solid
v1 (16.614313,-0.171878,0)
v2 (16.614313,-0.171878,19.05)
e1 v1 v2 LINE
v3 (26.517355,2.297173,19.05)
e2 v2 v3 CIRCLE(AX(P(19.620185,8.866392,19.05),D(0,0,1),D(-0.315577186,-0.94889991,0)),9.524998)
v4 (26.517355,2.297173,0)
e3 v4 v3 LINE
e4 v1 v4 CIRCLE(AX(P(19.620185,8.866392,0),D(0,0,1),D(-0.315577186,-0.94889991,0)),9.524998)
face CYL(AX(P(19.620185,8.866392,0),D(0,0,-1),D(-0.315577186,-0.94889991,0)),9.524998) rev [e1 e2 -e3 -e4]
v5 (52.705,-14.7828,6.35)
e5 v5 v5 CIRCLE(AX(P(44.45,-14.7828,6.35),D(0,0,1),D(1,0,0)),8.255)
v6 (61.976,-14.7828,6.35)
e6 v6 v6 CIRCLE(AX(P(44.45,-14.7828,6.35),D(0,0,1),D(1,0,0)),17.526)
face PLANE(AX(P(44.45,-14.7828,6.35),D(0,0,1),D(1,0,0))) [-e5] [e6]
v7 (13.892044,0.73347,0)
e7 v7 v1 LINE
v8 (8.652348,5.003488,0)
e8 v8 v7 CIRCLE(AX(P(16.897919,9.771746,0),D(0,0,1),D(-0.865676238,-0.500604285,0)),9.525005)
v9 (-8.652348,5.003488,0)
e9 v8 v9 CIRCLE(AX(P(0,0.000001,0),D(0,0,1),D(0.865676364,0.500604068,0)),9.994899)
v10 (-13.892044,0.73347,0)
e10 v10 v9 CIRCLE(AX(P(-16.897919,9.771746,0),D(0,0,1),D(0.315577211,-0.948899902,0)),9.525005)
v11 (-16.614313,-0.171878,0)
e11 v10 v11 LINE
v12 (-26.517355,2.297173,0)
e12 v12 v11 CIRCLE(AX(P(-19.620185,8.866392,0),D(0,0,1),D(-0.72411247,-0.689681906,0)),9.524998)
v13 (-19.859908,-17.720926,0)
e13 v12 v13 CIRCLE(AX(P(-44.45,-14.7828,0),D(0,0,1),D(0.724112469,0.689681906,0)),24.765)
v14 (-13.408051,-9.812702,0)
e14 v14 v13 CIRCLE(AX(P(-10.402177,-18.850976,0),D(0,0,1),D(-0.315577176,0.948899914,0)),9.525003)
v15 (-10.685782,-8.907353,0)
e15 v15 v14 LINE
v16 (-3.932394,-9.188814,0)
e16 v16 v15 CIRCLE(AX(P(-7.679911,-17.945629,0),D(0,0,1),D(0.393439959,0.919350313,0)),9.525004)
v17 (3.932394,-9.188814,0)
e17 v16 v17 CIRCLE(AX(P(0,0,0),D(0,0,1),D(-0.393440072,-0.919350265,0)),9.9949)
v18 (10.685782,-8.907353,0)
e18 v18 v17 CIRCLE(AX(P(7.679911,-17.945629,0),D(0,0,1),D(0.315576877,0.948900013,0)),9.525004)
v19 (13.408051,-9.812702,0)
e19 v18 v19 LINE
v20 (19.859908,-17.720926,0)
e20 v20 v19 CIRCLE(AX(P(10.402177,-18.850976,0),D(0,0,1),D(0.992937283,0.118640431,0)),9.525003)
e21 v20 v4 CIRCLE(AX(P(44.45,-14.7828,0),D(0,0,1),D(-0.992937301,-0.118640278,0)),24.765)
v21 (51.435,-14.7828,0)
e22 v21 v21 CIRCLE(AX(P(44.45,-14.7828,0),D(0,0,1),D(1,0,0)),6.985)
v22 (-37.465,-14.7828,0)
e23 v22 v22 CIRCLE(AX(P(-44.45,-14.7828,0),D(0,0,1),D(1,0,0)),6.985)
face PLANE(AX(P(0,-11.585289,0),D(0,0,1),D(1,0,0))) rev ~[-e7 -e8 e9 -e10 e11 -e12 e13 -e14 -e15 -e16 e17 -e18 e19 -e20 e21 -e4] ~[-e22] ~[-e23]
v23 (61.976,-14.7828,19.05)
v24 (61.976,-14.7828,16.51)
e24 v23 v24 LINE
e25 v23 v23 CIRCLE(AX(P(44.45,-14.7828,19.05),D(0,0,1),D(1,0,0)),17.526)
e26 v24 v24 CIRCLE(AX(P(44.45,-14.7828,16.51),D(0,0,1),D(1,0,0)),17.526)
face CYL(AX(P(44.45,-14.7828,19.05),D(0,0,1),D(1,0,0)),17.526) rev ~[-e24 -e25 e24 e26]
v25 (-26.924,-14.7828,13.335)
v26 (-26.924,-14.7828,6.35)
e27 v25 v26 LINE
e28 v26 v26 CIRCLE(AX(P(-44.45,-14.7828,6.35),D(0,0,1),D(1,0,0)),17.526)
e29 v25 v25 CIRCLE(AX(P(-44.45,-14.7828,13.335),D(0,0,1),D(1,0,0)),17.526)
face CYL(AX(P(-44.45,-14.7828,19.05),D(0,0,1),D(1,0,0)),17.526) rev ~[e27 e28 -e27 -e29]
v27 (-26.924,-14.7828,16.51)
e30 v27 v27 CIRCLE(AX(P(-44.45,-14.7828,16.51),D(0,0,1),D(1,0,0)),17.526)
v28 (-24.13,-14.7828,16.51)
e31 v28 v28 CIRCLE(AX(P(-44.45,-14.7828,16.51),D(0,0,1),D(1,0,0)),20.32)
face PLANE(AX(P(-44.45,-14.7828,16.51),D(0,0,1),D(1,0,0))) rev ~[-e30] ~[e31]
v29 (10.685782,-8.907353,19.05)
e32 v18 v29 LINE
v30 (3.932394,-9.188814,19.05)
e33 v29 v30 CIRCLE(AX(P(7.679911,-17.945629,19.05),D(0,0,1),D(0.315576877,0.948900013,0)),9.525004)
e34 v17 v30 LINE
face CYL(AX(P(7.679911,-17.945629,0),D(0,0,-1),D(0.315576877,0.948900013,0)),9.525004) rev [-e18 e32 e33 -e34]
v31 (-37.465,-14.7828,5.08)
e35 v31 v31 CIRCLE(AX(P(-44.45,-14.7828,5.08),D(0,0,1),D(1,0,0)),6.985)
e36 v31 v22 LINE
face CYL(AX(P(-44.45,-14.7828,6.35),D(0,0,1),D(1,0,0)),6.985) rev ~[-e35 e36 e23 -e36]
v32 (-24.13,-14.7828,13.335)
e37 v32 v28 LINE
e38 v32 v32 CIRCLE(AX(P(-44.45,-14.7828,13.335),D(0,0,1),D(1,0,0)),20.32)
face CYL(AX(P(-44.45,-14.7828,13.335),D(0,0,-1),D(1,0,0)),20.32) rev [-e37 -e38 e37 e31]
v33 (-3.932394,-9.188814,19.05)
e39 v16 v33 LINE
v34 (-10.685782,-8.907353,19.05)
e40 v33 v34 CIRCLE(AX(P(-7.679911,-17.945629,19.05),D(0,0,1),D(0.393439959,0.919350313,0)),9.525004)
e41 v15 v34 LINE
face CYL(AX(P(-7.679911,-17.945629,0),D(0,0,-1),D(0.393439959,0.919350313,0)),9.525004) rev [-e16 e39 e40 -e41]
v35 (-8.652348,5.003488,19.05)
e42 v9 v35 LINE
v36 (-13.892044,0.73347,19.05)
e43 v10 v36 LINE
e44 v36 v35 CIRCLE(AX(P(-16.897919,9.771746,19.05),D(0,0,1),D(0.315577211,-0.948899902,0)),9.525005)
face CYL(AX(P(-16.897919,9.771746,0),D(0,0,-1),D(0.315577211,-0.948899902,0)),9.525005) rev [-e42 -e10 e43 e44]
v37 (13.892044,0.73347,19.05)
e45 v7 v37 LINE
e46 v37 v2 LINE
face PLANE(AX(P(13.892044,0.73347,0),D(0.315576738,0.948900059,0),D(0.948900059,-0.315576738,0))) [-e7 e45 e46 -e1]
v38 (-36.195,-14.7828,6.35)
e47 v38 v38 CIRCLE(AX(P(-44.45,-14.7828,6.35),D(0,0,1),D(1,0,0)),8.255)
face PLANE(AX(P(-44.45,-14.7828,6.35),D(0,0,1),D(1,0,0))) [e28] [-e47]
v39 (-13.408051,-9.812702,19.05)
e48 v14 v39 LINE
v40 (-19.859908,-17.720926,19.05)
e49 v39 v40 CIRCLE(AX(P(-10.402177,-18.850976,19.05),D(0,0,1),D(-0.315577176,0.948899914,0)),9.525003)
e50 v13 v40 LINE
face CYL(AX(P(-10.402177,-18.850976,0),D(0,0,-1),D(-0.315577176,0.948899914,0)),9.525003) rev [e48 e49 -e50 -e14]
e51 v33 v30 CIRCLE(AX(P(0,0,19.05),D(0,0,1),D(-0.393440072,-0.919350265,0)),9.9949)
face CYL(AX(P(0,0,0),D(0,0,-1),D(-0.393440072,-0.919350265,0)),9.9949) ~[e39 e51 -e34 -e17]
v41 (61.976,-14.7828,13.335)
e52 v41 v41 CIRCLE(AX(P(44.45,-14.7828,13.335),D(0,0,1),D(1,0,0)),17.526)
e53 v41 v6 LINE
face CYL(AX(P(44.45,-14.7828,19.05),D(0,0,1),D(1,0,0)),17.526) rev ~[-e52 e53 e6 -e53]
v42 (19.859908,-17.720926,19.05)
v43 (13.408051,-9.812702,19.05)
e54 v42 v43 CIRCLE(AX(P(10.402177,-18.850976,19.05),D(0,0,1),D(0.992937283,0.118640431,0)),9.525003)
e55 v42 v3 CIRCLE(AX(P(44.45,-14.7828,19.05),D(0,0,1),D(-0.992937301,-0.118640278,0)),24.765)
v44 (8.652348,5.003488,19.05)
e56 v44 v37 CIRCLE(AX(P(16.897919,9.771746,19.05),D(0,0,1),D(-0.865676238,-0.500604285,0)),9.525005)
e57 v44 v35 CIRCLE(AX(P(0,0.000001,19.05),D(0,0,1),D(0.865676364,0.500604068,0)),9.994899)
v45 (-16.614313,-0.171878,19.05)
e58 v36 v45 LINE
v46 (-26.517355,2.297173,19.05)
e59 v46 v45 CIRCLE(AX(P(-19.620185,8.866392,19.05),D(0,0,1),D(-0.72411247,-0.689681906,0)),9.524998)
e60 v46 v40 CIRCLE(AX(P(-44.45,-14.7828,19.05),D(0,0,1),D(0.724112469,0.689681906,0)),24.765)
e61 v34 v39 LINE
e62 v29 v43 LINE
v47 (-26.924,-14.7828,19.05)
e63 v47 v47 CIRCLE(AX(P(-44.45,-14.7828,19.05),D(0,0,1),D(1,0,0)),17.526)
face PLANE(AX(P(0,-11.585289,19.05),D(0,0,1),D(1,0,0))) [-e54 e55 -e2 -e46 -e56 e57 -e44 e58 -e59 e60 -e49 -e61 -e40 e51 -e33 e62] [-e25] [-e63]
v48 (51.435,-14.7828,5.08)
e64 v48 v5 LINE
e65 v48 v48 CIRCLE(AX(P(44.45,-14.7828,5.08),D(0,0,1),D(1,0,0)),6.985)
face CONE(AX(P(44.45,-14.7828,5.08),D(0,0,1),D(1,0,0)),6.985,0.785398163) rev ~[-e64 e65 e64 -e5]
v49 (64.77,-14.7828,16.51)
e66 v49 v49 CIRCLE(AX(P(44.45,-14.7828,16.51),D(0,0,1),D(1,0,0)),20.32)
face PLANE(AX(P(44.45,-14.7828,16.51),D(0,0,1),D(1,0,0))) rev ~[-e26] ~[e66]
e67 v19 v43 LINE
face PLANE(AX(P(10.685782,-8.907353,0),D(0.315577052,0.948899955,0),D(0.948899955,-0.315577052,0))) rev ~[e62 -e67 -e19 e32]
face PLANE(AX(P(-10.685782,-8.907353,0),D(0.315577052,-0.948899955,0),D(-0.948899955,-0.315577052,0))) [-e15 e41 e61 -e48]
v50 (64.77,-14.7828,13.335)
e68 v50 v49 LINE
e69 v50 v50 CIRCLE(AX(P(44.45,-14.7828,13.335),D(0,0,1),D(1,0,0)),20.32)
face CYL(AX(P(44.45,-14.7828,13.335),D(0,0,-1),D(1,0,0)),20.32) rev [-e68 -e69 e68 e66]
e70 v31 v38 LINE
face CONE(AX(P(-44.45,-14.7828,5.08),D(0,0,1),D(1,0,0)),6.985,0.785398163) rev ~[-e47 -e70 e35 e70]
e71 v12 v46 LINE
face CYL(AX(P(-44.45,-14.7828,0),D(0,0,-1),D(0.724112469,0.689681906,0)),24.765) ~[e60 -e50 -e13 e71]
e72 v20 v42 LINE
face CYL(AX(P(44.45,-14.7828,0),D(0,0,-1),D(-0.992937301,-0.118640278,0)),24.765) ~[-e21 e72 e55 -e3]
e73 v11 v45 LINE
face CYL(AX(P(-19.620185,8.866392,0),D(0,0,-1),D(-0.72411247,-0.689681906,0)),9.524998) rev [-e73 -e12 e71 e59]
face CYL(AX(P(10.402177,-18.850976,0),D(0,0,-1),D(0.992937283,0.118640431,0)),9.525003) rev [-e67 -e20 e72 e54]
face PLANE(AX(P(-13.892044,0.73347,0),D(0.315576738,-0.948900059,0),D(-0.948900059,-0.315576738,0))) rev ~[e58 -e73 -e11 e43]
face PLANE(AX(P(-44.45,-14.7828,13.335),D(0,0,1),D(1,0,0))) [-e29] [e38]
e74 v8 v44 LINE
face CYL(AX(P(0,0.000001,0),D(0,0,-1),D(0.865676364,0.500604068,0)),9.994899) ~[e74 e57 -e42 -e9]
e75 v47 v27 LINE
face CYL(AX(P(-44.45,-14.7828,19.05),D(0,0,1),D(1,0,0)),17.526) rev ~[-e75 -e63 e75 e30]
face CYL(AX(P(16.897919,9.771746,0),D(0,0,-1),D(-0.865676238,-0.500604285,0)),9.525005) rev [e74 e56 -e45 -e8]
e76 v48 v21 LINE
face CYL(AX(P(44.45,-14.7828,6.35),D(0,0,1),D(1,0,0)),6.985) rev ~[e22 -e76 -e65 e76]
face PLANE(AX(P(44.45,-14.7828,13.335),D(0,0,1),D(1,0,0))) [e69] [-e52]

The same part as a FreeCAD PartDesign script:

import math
import FreeCAD as App
import Part
import Sketcher
Q = App.Units.Quantity


def edges_at(feature, points):
    """Names of the edges that pass closest to the given points."""
    edges = feature.Shape.Edges
    near = lambda p: min(range(len(edges)), key=lambda i: edges[i].distToShape(Part.Vertex(*p))[0])
    return sorted({f"Edge{near(p) + 1}" for p in points})

doc = App.newDocument("Part")
body = doc.addObject("PartDesign::Body", "Body")

sketch1 = doc.addObject("Sketcher::SketchObject", "Sketch")
body.addObject(sketch1)
sketch1.AttachmentSupport = (doc.XY_Plane, [""])
sketch1.MapMode = "FlatFace"
sketch1.addGeometry([
    Part.ArcOfCircle(Part.Circle(App.Vector(-44.45, -14.7828, 0), App.Vector(0, 0, 1), 24.765), math.radians(43.604934), math.radians(353.186364)),
    Part.ArcOfCircle(Part.Circle(App.Vector(-10.402177, -18.850976, 0), App.Vector(0, 0, 1), 9.525003), math.radians(108.395661), math.radians(173.186356)),
    Part.LineSegment(App.Vector(-13.408051, -9.812702, 0), App.Vector(-10.685782, -8.907353, 0)),
    Part.ArcOfCircle(Part.Circle(App.Vector(-7.679911, -17.945629, 0), App.Vector(0, 0, 1), 9.525004), math.radians(66.831286), math.radians(108.395643)),
    Part.ArcOfCircle(Part.Circle(App.Vector(0, 0, 0), App.Vector(0, 0, 1), 9.9949), math.radians(-113.168721), math.radians(-66.831279)),
    Part.ArcOfCircle(Part.Circle(App.Vector(7.679911, -17.945629, 0), App.Vector(0, 0, 1), 9.525004), math.radians(71.604357), math.radians(113.168714)),
    Part.LineSegment(App.Vector(10.685782, -8.907353, 0), App.Vector(13.408051, -9.812702, 0)),
    Part.ArcOfCircle(Part.Circle(App.Vector(10.402177, -18.850976, 0), App.Vector(0, 0, 1), 9.525003), math.radians(6.813644), math.radians(71.604339)),
    Part.ArcOfCircle(Part.Circle(App.Vector(44.45, -14.7828, 0), App.Vector(0, 0, 1), 24.765), math.radians(-173.186364), math.radians(136.395066)),
    Part.ArcOfCircle(Part.Circle(App.Vector(19.620185, 8.866392, 0), App.Vector(0, 0, 1), 9.524998), math.radians(-108.395662), math.radians(-43.604934)),
    Part.LineSegment(App.Vector(16.614313, -0.171878, 0), App.Vector(13.892044, 0.73347, 0)),
    Part.ArcOfCircle(Part.Circle(App.Vector(16.897919, 9.771746, 0), App.Vector(0, 0, 1), 9.525005), math.radians(-149.960013), math.radians(-108.395663)),
    Part.ArcOfCircle(Part.Circle(App.Vector(0, 0.000001, 0), App.Vector(0, 0, 1), 9.994899), math.radians(30.039973), math.radians(149.960027)),
    Part.ArcOfCircle(Part.Circle(App.Vector(-16.897919, 9.771746, 0), App.Vector(0, 0, 1), 9.525005), math.radians(-71.604337), math.radians(-30.039987)),
    Part.LineSegment(App.Vector(-13.892044, 0.73347, 0), App.Vector(-16.614313, -0.171878, 0)),
    Part.ArcOfCircle(Part.Circle(App.Vector(-19.620185, 8.866392, 0), App.Vector(0, 0, 1), 9.524998), math.radians(-136.395066), math.radians(-71.604338)),
], False)
sketch1.addConstraint([
    Sketcher.Constraint("Tangent", 0, 2, 1, 2),
    Sketcher.Constraint("Tangent", 1, 1, 2, 1),
    Sketcher.Constraint("Tangent", 2, 2, 3, 2),
    Sketcher.Constraint("Tangent", 3, 1, 4, 1),
    Sketcher.Constraint("Tangent", 4, 2, 5, 2),
    Sketcher.Constraint("Tangent", 5, 1, 6, 1),
    Sketcher.Constraint("Tangent", 6, 2, 7, 2),
    Sketcher.Constraint("Tangent", 7, 1, 8, 1),
    Sketcher.Constraint("Tangent", 8, 2, 9, 2),
    Sketcher.Constraint("Tangent", 9, 1, 10, 1),
    Sketcher.Constraint("Tangent", 10, 2, 11, 2),
    Sketcher.Constraint("Tangent", 11, 1, 12, 1),
    Sketcher.Constraint("Tangent", 12, 2, 13, 2),
    Sketcher.Constraint("Tangent", 13, 1, 14, 1),
    Sketcher.Constraint("Tangent", 14, 2, 15, 2),
    Sketcher.Constraint("Tangent", 15, 1, 0, 1),
    Sketcher.Constraint("Coincident", 4, 3, -1, 1),
    Sketcher.Constraint("Coincident", 12, 3, -1, 1),
    Sketcher.Constraint("Equal", 1, 3),
    Sketcher.Constraint("Equal", 3, 5),
    Sketcher.Constraint("Equal", 5, 7),
    Sketcher.Constraint("Equal", 0, 8),
    Sketcher.Constraint("Equal", 5, 11),
    Sketcher.Constraint("Equal", 4, 12),
    Sketcher.Constraint("Equal", 11, 13),
    Sketcher.Constraint("Equal", 9, 15),
    Sketcher.Constraint("Symmetric", 1, 3, 7, 3, -2),
    Sketcher.Constraint("Symmetric", 9, 3, 15, 3, -2),
    Sketcher.Constraint("Parallel", 6, 10),
    Sketcher.Constraint("Parallel", 2, 14),
    Sketcher.Constraint("Horizontal", 3, 3, 5, 3),
    Sketcher.Constraint("Equal", 6, 10),
    Sketcher.Constraint("Radius", 0, Q("0.975 in")),
    Sketcher.Constraint("Radius", 1, Q("0.3750001 in")),
    Sketcher.Constraint("Radius", 9, Q("0.3749999 in")),
    Sketcher.Constraint("Radius", 4, Q("0.3935 in")),
    Sketcher.Constraint("DistanceX", 0, 3, -1, 1, Q("1.75 in")),
    Sketcher.Constraint("DistanceY", 0, 3, -1, 1, Q("0.582 in")),
    Sketcher.Constraint("DistanceX", 2, 2, -1, 1, Q("0.4207001 in")),
    Sketcher.Constraint("DistanceY", 7, 3, 4, 2, Q("0.3804001 in")),
])
pad1 = doc.addObject("PartDesign::Pad", "Pad")
body.addObject(pad1)
pad1.Profile = sketch1
pad1.Length = Q("0.75 in")

sketch2 = doc.addObject("Sketcher::SketchObject", "Sketch001")
body.addObject(sketch2)
sketch2.AttachmentSupport = (doc.XY_Plane, [""])
sketch2.MapMode = "FlatFace"
sketch2.AttachmentOffset = App.Placement(App.Vector(0, 0, 0.75 * 25.4), App.Rotation())
sketch2.addGeometry([
    Part.Circle(App.Vector(-44.45, -14.7828, 0), App.Vector(0, 0, 1), 17.526),
    Part.Circle(App.Vector(44.45, -14.7828, 0), App.Vector(0, 0, 1), 17.526),
], False)
sketch2.addConstraint([
    Sketcher.Constraint("Equal", 0, 1),
    Sketcher.Constraint("Symmetric", 0, 3, 1, 3, -2),
    Sketcher.Constraint("Diameter", 0, Q("1.38 in")),
    Sketcher.Constraint("DistanceX", 0, 3, 1, 3, Q("3.5 in")),
    Sketcher.Constraint("DistanceY", 0, 3, -1, 1, Q("0.582 in")),
])
pocket1 = doc.addObject("PartDesign::Pocket", "Pocket")
body.addObject(pocket1)
pocket1.Profile = sketch2
pocket1.Length = Q("0.5 in")

sketch3 = doc.addObject("Sketcher::SketchObject", "Sketch002")
body.addObject(sketch3)
sketch3.AttachmentSupport = (doc.XY_Plane, [""])
sketch3.MapMode = "FlatFace"
sketch3.AttachmentOffset = App.Placement(App.Vector(0, 0, 0.25 * 25.4), App.Rotation())
sketch3.addGeometry([
    Part.Circle(App.Vector(-44.45, -14.7828, 0), App.Vector(0, 0, 1), 6.985),
    Part.Circle(App.Vector(44.45, -14.7828, 0), App.Vector(0, 0, 1), 6.985),
], False)
sketch3.addConstraint([
    Sketcher.Constraint("Equal", 0, 1),
    Sketcher.Constraint("Symmetric", 0, 3, 1, 3, -2),
    Sketcher.Constraint("Diameter", 0, Q("0.55 in")),
    Sketcher.Constraint("DistanceX", 0, 3, 1, 3, Q("3.5 in")),
    Sketcher.Constraint("DistanceY", 0, 3, -1, 1, Q("0.582 in")),
])
pocket2 = doc.addObject("PartDesign::Pocket", "Pocket001")
body.addObject(pocket2)
pocket2.Profile = sketch3
pocket2.Type = "ThroughAll"
doc.recompute()

chamfer = doc.addObject("PartDesign::Chamfer", "Chamfer")
body.addObject(chamfer)
chamfer.Base = (pocket2, edges_at(pocket2, [(-51.435, -14.783, 6.35), (37.465, -14.783, 6.35)]))
chamfer.Size = Q("0.05 in")

sketch4 = doc.addObject("Sketcher::SketchObject", "Sketch003")
body.addObject(sketch4)
sketch4.AttachmentSupport = (doc.XY_Plane, [""])
sketch4.MapMode = "FlatFace"
sketch4.AttachmentOffset = App.Placement(App.Vector(0, 0, 0.525 * 25.4), App.Rotation())
sketch4.addGeometry([
    Part.Circle(App.Vector(-44.45, -14.7828, 0), App.Vector(0, 0, 1), 20.32),
    Part.Circle(App.Vector(44.45, -14.7828, 0), App.Vector(0, 0, 1), 20.32),
], False)
sketch4.addConstraint([
    Sketcher.Constraint("Equal", 0, 1),
    Sketcher.Constraint("Symmetric", 0, 3, 1, 3, -2),
    Sketcher.Constraint("Diameter", 0, Q("1.6 in")),
    Sketcher.Constraint("DistanceX", 0, 3, 1, 3, Q("3.5 in")),
    Sketcher.Constraint("DistanceY", 0, 3, -1, 1, Q("0.582 in")),
])
pocket3 = doc.addObject("PartDesign::Pocket", "Pocket002")
body.addObject(pocket3)
pocket3.Profile = sketch4
pocket3.Length = Q("0.125 in")
pocket3.Reversed = True

doc.recompute()
